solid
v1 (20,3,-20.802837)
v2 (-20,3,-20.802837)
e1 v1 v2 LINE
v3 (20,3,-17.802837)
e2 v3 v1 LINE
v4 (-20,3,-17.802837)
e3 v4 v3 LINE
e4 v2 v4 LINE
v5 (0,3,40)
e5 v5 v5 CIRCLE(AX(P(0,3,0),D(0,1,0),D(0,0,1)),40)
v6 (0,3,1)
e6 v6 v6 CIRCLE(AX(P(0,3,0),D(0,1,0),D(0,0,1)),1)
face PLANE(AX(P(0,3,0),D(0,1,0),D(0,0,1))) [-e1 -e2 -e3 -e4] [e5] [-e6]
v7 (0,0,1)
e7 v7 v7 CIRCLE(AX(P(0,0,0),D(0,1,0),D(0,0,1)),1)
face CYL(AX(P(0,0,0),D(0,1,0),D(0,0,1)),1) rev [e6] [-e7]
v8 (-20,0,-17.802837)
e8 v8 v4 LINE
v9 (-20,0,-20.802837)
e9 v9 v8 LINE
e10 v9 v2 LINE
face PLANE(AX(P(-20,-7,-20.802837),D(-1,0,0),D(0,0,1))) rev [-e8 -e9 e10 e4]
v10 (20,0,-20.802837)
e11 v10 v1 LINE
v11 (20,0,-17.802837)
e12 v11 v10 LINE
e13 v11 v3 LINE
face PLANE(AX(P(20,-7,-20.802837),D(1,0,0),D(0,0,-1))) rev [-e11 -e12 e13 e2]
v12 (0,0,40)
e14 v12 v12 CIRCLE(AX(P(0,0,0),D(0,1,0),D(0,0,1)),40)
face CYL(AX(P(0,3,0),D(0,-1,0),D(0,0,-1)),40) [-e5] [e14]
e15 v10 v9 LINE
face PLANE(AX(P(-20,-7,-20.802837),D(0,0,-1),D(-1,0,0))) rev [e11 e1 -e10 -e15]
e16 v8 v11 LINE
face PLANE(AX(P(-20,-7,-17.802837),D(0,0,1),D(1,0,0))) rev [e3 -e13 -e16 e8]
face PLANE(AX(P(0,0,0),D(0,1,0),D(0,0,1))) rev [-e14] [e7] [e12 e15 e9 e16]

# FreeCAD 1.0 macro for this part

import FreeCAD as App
import Part
import Sketcher

V = App.Vector

doc = App.newDocument("Part")
body = doc.addObject("PartDesign::Body", "Body")

# Sketch on XZ plane
sketch1 = doc.addObject("Sketcher::SketchObject", "Sketch")
body.addObject(sketch1)
sketch1.AttachmentSupport = (doc.XZ_Plane, [""])
sketch1.MapMode = "FlatFace"
sketch1.addGeometry(Part.Circle(V(0, 0, 0), V(0, 0, 1), 40), False)
sketch1.addConstraint([
    Sketcher.Constraint("Coincident", 0, 3, -1, 1),
    Sketcher.Constraint("Diameter", 0, 80.0),
])
pad1 = doc.addObject("PartDesign::Pad", "Pad")
body.addObject(pad1)
pad1.Profile = sketch1
pad1.Length = 3
pad1.Reversed = True

# Sketch on XZ plane
sketch2 = doc.addObject("Sketcher::SketchObject", "Sketch001")
body.addObject(sketch2)
sketch2.AttachmentSupport = (doc.XZ_Plane, [""])
sketch2.MapMode = "FlatFace"
sketch2.AttachmentOffset = App.Placement(V(0, 0, -3), App.Rotation())
sketch2.addGeometry(Part.Circle(V(0, 0, 0), V(0, 0, 1), 1), False)
sketch2.addConstraint([
    Sketcher.Constraint("Coincident", 0, 3, -1, 1),
    Sketcher.Constraint("Diameter", 0, 2.0),
])
pocket1 = doc.addObject("PartDesign::Pocket", "Pocket")
body.addObject(pocket1)
pocket1.Profile = sketch2
pocket1.Length = 3
pocket1.Reversed = True

# Sketch on XZ plane
sketch3 = doc.addObject("Sketcher::SketchObject", "Sketch002")
body.addObject(sketch3)
sketch3.AttachmentSupport = (doc.XZ_Plane, [""])
sketch3.MapMode = "FlatFace"
sketch3.AttachmentOffset = App.Placement(V(0, 0, -3), App.Rotation())
sketch3.addGeometry([
    Part.LineSegment(V(-20, -20.802837, 0), V(-20, -17.802837, 0)),
    Part.LineSegment(V(-20, -17.802837, 0), V(20, -17.802837, 0)),
    Part.LineSegment(V(20, -17.802837, 0), V(20, -20.802837, 0)),
    Part.LineSegment(V(20, -20.802837, 0), V(-20, -20.802837, 0)),
], False)
sketch3.addConstraint([
    Sketcher.Constraint("Coincident", 0, 2, 1, 1),
    Sketcher.Constraint("Coincident", 1, 2, 2, 1),
    Sketcher.Constraint("Coincident", 2, 2, 3, 1),
    Sketcher.Constraint("Coincident", 3, 2, 0, 1),
    Sketcher.Constraint("Vertical", 0),
    Sketcher.Constraint("Horizontal", 1),
    Sketcher.Constraint("Vertical", 2),
    Sketcher.Constraint("Horizontal", 3),
    Sketcher.Constraint("DistanceX", 1, 1, 1, 2, 40.0),
    Sketcher.Constraint("DistanceY", 0, 1, 0, 2, 3.0),
    Sketcher.Constraint("DistanceX", 0, 2, -1, 1, 20.0),
    Sketcher.Constraint("DistanceY", 0, 2, -1, 1, 17.802837),
])
pocket2 = doc.addObject("PartDesign::Pocket", "Pocket001")
body.addObject(pocket2)
pocket2.Profile = sketch3
pocket2.Length = 10
pocket2.Reversed = True

doc.recompute()
